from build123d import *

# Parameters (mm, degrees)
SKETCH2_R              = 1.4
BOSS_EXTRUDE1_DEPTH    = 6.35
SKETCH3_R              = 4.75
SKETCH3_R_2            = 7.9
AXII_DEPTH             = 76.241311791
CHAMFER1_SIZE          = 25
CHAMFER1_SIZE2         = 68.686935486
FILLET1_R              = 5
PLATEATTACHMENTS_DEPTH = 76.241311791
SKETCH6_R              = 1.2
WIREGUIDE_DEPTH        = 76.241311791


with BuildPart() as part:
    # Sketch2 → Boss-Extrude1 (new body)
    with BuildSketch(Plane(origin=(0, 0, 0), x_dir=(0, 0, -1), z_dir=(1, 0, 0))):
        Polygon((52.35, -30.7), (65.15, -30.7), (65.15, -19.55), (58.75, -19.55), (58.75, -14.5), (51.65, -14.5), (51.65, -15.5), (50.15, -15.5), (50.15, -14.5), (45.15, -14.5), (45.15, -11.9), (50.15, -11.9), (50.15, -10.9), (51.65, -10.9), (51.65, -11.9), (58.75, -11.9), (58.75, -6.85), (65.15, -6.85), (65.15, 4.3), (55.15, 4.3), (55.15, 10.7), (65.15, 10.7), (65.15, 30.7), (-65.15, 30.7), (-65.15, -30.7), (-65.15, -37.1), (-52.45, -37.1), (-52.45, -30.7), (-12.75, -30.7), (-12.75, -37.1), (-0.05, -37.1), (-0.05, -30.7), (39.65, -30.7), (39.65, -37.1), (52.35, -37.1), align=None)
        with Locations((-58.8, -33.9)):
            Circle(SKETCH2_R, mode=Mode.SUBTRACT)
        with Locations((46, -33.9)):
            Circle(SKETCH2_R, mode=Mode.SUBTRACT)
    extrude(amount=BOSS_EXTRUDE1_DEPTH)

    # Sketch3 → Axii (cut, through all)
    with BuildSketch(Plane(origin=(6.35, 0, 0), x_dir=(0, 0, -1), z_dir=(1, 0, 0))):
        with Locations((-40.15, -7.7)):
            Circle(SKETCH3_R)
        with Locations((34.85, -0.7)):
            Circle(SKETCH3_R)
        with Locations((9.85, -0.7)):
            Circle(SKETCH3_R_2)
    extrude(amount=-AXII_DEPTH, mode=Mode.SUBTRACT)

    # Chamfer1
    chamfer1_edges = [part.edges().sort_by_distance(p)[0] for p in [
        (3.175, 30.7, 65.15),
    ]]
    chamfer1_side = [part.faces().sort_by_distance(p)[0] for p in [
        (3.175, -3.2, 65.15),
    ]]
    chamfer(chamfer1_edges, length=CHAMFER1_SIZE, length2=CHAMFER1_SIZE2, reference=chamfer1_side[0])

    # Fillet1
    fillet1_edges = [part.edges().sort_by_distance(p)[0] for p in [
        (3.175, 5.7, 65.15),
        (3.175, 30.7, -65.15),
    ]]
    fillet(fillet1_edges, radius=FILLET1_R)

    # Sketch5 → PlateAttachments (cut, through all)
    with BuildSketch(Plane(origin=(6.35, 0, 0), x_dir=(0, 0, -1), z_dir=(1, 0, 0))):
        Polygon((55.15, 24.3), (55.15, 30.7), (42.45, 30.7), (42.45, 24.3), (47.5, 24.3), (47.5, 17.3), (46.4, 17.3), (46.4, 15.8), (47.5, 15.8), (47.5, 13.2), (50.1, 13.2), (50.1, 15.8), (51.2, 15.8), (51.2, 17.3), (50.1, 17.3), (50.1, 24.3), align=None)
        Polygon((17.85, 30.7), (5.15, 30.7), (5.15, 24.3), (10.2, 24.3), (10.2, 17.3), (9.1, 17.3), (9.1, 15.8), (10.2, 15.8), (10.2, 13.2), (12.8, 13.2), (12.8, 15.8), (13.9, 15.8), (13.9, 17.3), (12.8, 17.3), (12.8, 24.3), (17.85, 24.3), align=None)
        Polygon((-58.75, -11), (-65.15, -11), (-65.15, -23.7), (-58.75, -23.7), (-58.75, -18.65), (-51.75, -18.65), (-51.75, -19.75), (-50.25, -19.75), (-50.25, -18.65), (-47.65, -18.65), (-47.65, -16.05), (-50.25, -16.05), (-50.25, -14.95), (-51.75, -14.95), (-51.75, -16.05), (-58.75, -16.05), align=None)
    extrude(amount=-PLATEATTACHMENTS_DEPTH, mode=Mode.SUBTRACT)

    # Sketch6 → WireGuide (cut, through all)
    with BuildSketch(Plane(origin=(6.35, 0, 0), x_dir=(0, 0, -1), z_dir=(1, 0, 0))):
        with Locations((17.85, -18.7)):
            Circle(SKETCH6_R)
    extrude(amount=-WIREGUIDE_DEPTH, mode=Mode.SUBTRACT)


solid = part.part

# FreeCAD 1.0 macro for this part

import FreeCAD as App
import Part
import Sketcher
from FreeCAD import Vector


def edges_at(feature, points):
    """Names of the edges that pass closest to the given points."""
    edges = feature.Shape.Edges
    near = lambda p: min(range(len(edges)), key=lambda i: edges[i].distToShape(Part.Vertex(*p))[0])
    return sorted({f"Edge{near(p) + 1}" for p in points})


def add_polygon(sketch, points):
    """Adds a closed chain of lines whose ends are joined by coincident constraints."""
    first, n = sketch.GeometryCount, len(points)
    for a, b in zip(points, points[1:] + points[:1]):
        sketch.addGeometry(Part.LineSegment(App.Vector(*a, 0), App.Vector(*b, 0)), False)
    for i in range(n):
        sketch.addConstraint(Sketcher.Constraint("Coincident", first + i, 2, first + (i + 1) % n, 1))

doc = App.newDocument("Part")
body = doc.addObject("PartDesign::Body", "Body")

sketch1 = body.newObject("Sketcher::SketchObject", "Sketch")
sketch1.AttachmentSupport = (doc.getObject("YZ_Plane"), [""])
sketch1.MapMode = "FlatFace"
add_polygon(sketch1, [(-30.7, -52.4), (-30.7, -65.2), (-19.6, -65.2), (-19.6, -58.8), (-14.5, -58.8), (-14.5, -51.6), (-15.5, -51.6), (-15.5, -50.1), (-14.5, -50.1), (-14.5, -45.1), (-11.9, -45.1), (-11.9, -50.1), (-10.9, -50.1), (-10.9, -51.6), (-11.9, -51.6), (-11.9, -58.8), (-6.8, -58.8), (-6.8, -65.2), (4.3, -65.2), (4.3, -55.1), (10.7, -55.1), (10.7, -65.2), (30.7, -65.2), (30.7, 65.2), (-37.1, 65.2), (-37.1, 52.5), (-30.7, 52.5), (-30.7, 12.8), (-37.1, 12.8), (-37.1, 0.1), (-30.7, 0.1), (-30.7, -39.6), (-37.1, -39.6), (-37.1, -52.4)])
sketch1.addGeometry(Part.Circle(Vector(-33.9, 58.8, 0), Vector(0, 0, 1), 1.4), False)
sketch1.addGeometry(Part.Circle(Vector(-33.9, -46, 0), Vector(0, 0, 1), 1.4), False)
sketch1.addConstraint([
    Sketcher.Constraint("Vertical", 0),
    Sketcher.Constraint("Horizontal", 1),
    Sketcher.Constraint("Vertical", 2),
    Sketcher.Constraint("Horizontal", 3),
    Sketcher.Constraint("Vertical", 4),
    Sketcher.Constraint("Horizontal", 5),
    Sketcher.Constraint("Vertical", 6),
    Sketcher.Constraint("Horizontal", 7),
    Sketcher.Constraint("Vertical", 8),
    Sketcher.Constraint("Horizontal", 9),
    Sketcher.Constraint("Vertical", 10),
    Sketcher.Constraint("Horizontal", 11),
    Sketcher.Constraint("Vertical", 12),
    Sketcher.Constraint("Horizontal", 13),
    Sketcher.Constraint("Vertical", 14),
    Sketcher.Constraint("Horizontal", 15),
    Sketcher.Constraint("Vertical", 16),
    Sketcher.Constraint("Horizontal", 17),
    Sketcher.Constraint("Vertical", 18),
    Sketcher.Constraint("Horizontal", 19),
    Sketcher.Constraint("Vertical", 20),
    Sketcher.Constraint("Horizontal", 21),
    Sketcher.Constraint("Vertical", 22),
    Sketcher.Constraint("Horizontal", 23),
    Sketcher.Constraint("Vertical", 24),
    Sketcher.Constraint("Horizontal", 25),
    Sketcher.Constraint("Vertical", 26),
    Sketcher.Constraint("Horizontal", 27),
    Sketcher.Constraint("Vertical", 28),
    Sketcher.Constraint("Horizontal", 29),
    Sketcher.Constraint("Vertical", 30),
    Sketcher.Constraint("Horizontal", 31),
    Sketcher.Constraint("Vertical", 32),
    Sketcher.Constraint("Horizontal", 33),
    Sketcher.Constraint("Equal", 34, 35),
    Sketcher.Constraint("Symmetric", 0, 2, 22, 2, -1, 1),
    Sketcher.Constraint("Horizontal", 7, 2, 10, 2),
    Sketcher.Constraint("Horizontal", 5, 2, 12, 2),
    Sketcher.Constraint("Horizontal", 3, 2, 14, 2),
    Sketcher.Constraint("Horizontal", 1, 2, 16, 2),
    Sketcher.Constraint("Horizontal", 17, 2, 20, 2),
    Sketcher.Constraint("Vertical", 34, 3, 35, 3),
    Sketcher.Constraint("Vertical", 4, 2, 7, 2),
    Sketcher.Constraint("Vertical", 10, 2, 13, 2),
    Sketcher.Constraint("Vertical", 0, 2, 25, 2),
    Sketcher.Constraint("Vertical", 24, 2, 27, 2),
    Sketcher.Constraint("Vertical", 26, 2, 29, 2),
    Sketcher.Constraint("Vertical", 28, 2, 31, 2),
    Sketcher.Constraint("Equal", 7, 11),
    Sketcher.Constraint("Equal", 3, 15),
    Sketcher.Constraint("Equal", 1, 17),
    Sketcher.Constraint("Equal", 19, 25),
    Sketcher.Constraint("Equal", 33, 2),
    Sketcher.Constraint("Equal", 24, 28),
    Sketcher.Constraint("Equal", 26, 30),
    Sketcher.Constraint("Equal", 28, 32),
    Sketcher.Constraint("Diameter", 34, 2.8),
    Sketcher.Constraint("DistanceX", 5, 2, 5, 1, 1.0),
    Sketcher.Constraint("DistanceX", 21, 1, 21, 2, 20.0),
    Sketcher.Constraint("DistanceY", 8, 1, 8, 2, 5.0),
    Sketcher.Constraint("DistanceY", 18, 1, 18, 2, 10.0),
    Sketcher.Constraint("DistanceX", 9, 1, 9, 2, 2.6),
    Sketcher.Constraint("DistanceX", 19, 1, 19, 2, 6.4),
    Sketcher.Constraint("DistanceX", 23, 2, 23, 1, 67.8),
    Sketcher.Constraint("DistanceY", 0, 2, 0, 1, 12.8),
    Sketcher.Constraint("DistanceY", 4, 1, 4, 2, 7.1),
    Sketcher.Constraint("DistanceY", 6, 1, 6, 2, 1.5),
    Sketcher.Constraint("DistanceY", 22, 1, 22, 2, 130.3),
    Sketcher.Constraint("DistanceY", 24, 2, 24, 1, 12.7),
    Sketcher.Constraint("DistanceY", 35, 3, -1, 1, 46.0),
    Sketcher.Constraint("DistanceX", 1, 1, 1, 2, 11.15),
    Sketcher.Constraint("DistanceX", 34, 3, -1, 1, 33.9),
    Sketcher.Constraint("DistanceY", -1, 1, 34, 3, 58.8),
])
pad1 = body.newObject("PartDesign::Pad", "Pad")
pad1.Profile = sketch1
pad1.Length = 6.35

sketch2 = body.newObject("Sketcher::SketchObject", "Sketch001")
sketch2.AttachmentSupport = (doc.getObject("YZ_Plane"), [""])
sketch2.MapMode = "FlatFace"
sketch2.AttachmentOffset = App.Placement(Vector(0, 0, 6.35), App.Rotation())
sketch2.addGeometry([
    Part.Circle(Vector(-7.7, 40.1, 0), Vector(0, 0, 1), 4.8),
    Part.Circle(Vector(-0.7, -34.9, 0), Vector(0, 0, 1), 4.8),
    Part.Circle(Vector(-0.7, -9.8, 0), Vector(0, 0, 1), 7.9),
], False)
sketch2.addConstraint([
    Sketcher.Constraint("Equal", 0, 1),
    Sketcher.Constraint("Vertical", 1, 3, 2, 3),
    Sketcher.Constraint("Diameter", 0, 9.5),
    Sketcher.Constraint("Diameter", 2, 15.8),
    Sketcher.Constraint("DistanceX", 0, 3, 1, 3, 7.0),
    Sketcher.Constraint("DistanceY", 1, 3, 0, 3, 75.0),
    Sketcher.Constraint("DistanceY", 1, 3, 2, 3, 25.0),
    Sketcher.Constraint("DistanceX", 0, 3, -1, 1, 7.7),
    Sketcher.Constraint("DistanceY", -1, 1, 0, 3, 40.15),
])
pocket1 = body.newObject("PartDesign::Pocket", "Pocket")
pocket1.Profile = sketch2
pocket1.Type = "ThroughAll"
doc.recompute()

chamfer = body.newObject("PartDesign::Chamfer", "Chamfer")
chamfer.Base = (pocket1, edges_at(pocket1, [(3.175, 30.7, 65.15)]))
chamfer.ChamferType = "Two distances"
chamfer.Size = 25
chamfer.Size2 = 68.686935
doc.recompute()

fillet = body.newObject("PartDesign::Fillet", "Fillet")
fillet.Base = (chamfer, edges_at(chamfer, [(3.175, 5.7, 65.15), (3.175, 30.7, -65.15)]))
fillet.Radius = 5

sketch3 = body.newObject("Sketcher::SketchObject", "Sketch002")
sketch3.AttachmentSupport = (doc.getObject("YZ_Plane"), [""])
sketch3.MapMode = "FlatFace"
sketch3.AttachmentOffset = App.Placement(Vector(0, 0, 6.35), App.Rotation())
add_polygon(sketch3, [(24.3, -55.1), (30.7, -55.1), (30.7, -42.5), (24.3, -42.5), (24.3, -47.5), (17.3, -47.5), (17.3, -46.4), (15.8, -46.4), (15.8, -47.5), (13.2, -47.5), (13.2, -50.1), (15.8, -50.1), (15.8, -51.2), (17.3, -51.2), (17.3, -50.1), (24.3, -50.1)])
add_polygon(sketch3, [(30.7, -17.9), (30.7, -5.2), (24.3, -5.2), (24.3, -10.2), (17.3, -10.2), (17.3, -9.1), (15.8, -9.1), (15.8, -10.2), (13.2, -10.2), (13.2, -12.8), (15.8, -12.8), (15.8, -13.9), (17.3, -13.9), (17.3, -12.8), (24.3, -12.8), (24.3, -17.9)])
add_polygon(sketch3, [(-11, 58.8), (-11, 65.2), (-23.7, 65.2), (-23.7, 58.8), (-18.6, 58.8), (-18.6, 51.8), (-19.8, 51.8), (-19.8, 50.2), (-18.6, 50.2), (-18.6, 47.6), (-16.1, 47.6), (-16.1, 50.2), (-14.9, 50.2), (-14.9, 51.8), (-16.1, 51.8), (-16.1, 58.8)])
sketch3.addConstraint([
    Sketcher.Constraint("Horizontal", 0),
    Sketcher.Constraint("Vertical", 1),
    Sketcher.Constraint("Horizontal", 2),
    Sketcher.Constraint("Vertical", 3),
    Sketcher.Constraint("Horizontal", 4),
    Sketcher.Constraint("Vertical", 5),
    Sketcher.Constraint("Horizontal", 6),
    Sketcher.Constraint("Vertical", 7),
    Sketcher.Constraint("Horizontal", 8),
    Sketcher.Constraint("Vertical", 9),
    Sketcher.Constraint("Horizontal", 10),
    Sketcher.Constraint("Vertical", 11),
    Sketcher.Constraint("Horizontal", 12),
    Sketcher.Constraint("Vertical", 13),
    Sketcher.Constraint("Horizontal", 14),
    Sketcher.Constraint("Vertical", 15),
    Sketcher.Constraint("Vertical", 16),
    Sketcher.Constraint("Horizontal", 17),
    Sketcher.Constraint("Vertical", 18),
    Sketcher.Constraint("Horizontal", 19),
    Sketcher.Constraint("Vertical", 20),
    Sketcher.Constraint("Horizontal", 21),
    Sketcher.Constraint("Vertical", 22),
    Sketcher.Constraint("Horizontal", 23),
    Sketcher.Constraint("Vertical", 24),
    Sketcher.Constraint("Horizontal", 25),
    Sketcher.Constraint("Vertical", 26),
    Sketcher.Constraint("Horizontal", 27),
    Sketcher.Constraint("Vertical", 28),
    Sketcher.Constraint("Horizontal", 29),
    Sketcher.Constraint("Vertical", 30),
    Sketcher.Constraint("Horizontal", 31),
    Sketcher.Constraint("Vertical", 32),
    Sketcher.Constraint("Horizontal", 33),
    Sketcher.Constraint("Vertical", 34),
    Sketcher.Constraint("Horizontal", 35),
    Sketcher.Constraint("Vertical", 36),
    Sketcher.Constraint("Horizontal", 37),
    Sketcher.Constraint("Vertical", 38),
    Sketcher.Constraint("Horizontal", 39),
    Sketcher.Constraint("Vertical", 40),
    Sketcher.Constraint("Horizontal", 41),
    Sketcher.Constraint("Vertical", 42),
    Sketcher.Constraint("Horizontal", 43),
    Sketcher.Constraint("Vertical", 44),
    Sketcher.Constraint("Horizontal", 45),
    Sketcher.Constraint("Vertical", 46),
    Sketcher.Constraint("Horizontal", 47),
    Sketcher.Constraint("Horizontal", 4, 2, 7, 2),
    Sketcher.Constraint("Horizontal", 10, 2, 13, 2),
    Sketcher.Constraint("Horizontal", 19, 2, 22, 2),
    Sketcher.Constraint("Horizontal", 25, 2, 28, 2),
    Sketcher.Constraint("Horizontal", 39, 2, 42, 2),
    Sketcher.Constraint("Horizontal", 37, 2, 44, 2),
    Sketcher.Constraint("Horizontal", 35, 2, 46, 2),
    Sketcher.Constraint("Vertical", 7, 2, 10, 2),
    Sketcher.Constraint("Vertical", 5, 2, 12, 2),
    Sketcher.Constraint("Vertical", 3, 2, 14, 2),
    Sketcher.Constraint("Vertical", 1, 2, 16, 2),
    Sketcher.Constraint("Vertical", 15, 2, 17, 2),
    Sketcher.Constraint("Vertical", 13, 2, 19, 2),
    Sketcher.Constraint("Vertical", 11, 2, 21, 2),
    Sketcher.Constraint("Vertical", 9, 2, 23, 2),
    Sketcher.Constraint("Vertical", 22, 2, 25, 2),
    Sketcher.Constraint("Vertical", 20, 2, 27, 2),
    Sketcher.Constraint("Vertical", 18, 2, 29, 2),
    Sketcher.Constraint("Vertical", 36, 2, 39, 2),
    Sketcher.Constraint("Vertical", 42, 2, 45, 2),
    Sketcher.Constraint("Equal", 25, 41),
    Sketcher.Constraint("Equal", 39, 43),
    Sketcher.Constraint("Equal", 35, 47),
    Sketcher.Constraint("Equal", 33, 1),
    Sketcher.Constraint("Equal", 47, 3),
    Sketcher.Constraint("Equal", 45, 5),
    Sketcher.Constraint("Equal", 41, 9),
    Sketcher.Constraint("Equal", 7, 11),
    Sketcher.Constraint("Equal", 1, 16),
    Sketcher.Constraint("Equal", 15, 18),
    Sketcher.Constraint("Equal", 13, 20),
    Sketcher.Constraint("Equal", 9, 24),
    Sketcher.Constraint("Equal", 22, 26),
    Sketcher.Constraint("Equal", 31, 32),
    Sketcher.Constraint("Equal", 29, 36),
    Sketcher.Constraint("Equal", 27, 38),
    Sketcher.Constraint("Equal", 24, 40),
    Sketcher.Constraint("DistanceX", 4, 2, 4, 1, 7.0),
    Sketcher.Constraint("DistanceX", 0, 1, 0, 2, 6.4),
    Sketcher.Constraint("DistanceX", 6, 2, 6, 1, 1.5),
    Sketcher.Constraint("DistanceX", 8, 2, 8, 1, 2.6),
    Sketcher.Constraint("DistanceX", 33, 2, 33, 1, 12.7),
    Sketcher.Constraint("DistanceX", 37, 2, 37, 1, 1.1),
    Sketcher.Constraint("DistanceX", 32, 2, -1, 1, 11.0),
    Sketcher.Constraint("DistanceX", 33, 2, 20, 2, 41.0),
    Sketcher.Constraint("DistanceY", 3, 2, -1, 1, 47.5),
    Sketcher.Constraint("DistanceY", 18, 2, -1, 1, 10.2),
    Sketcher.Constraint("DistanceY", 17, 2, 32, 2, 70.3),
])
pocket2 = body.newObject("PartDesign::Pocket", "Pocket001")
pocket2.Profile = sketch3
pocket2.Type = "ThroughAll"

sketch4 = body.newObject("Sketcher::SketchObject", "Sketch003")
sketch4.AttachmentSupport = (doc.getObject("YZ_Plane"), [""])
sketch4.MapMode = "FlatFace"
sketch4.AttachmentOffset = App.Placement(Vector(0, 0, 6.35), App.Rotation())
sketch4.addGeometry(Part.Circle(Vector(-18.7, -17.9, 0), Vector(0, 0, 1), 1.2), False)
sketch4.addConstraint([
    Sketcher.Constraint("Diameter", 0, 2.4),
    Sketcher.Constraint("DistanceX", 0, 3, -1, 1, 18.7),
    Sketcher.Constraint("DistanceY", 0, 3, -1, 1, 17.85),
])
pocket3 = body.newObject("PartDesign::Pocket", "Pocket002")
pocket3.Profile = sketch4
pocket3.Type = "ThroughAll"

doc.recompute()
